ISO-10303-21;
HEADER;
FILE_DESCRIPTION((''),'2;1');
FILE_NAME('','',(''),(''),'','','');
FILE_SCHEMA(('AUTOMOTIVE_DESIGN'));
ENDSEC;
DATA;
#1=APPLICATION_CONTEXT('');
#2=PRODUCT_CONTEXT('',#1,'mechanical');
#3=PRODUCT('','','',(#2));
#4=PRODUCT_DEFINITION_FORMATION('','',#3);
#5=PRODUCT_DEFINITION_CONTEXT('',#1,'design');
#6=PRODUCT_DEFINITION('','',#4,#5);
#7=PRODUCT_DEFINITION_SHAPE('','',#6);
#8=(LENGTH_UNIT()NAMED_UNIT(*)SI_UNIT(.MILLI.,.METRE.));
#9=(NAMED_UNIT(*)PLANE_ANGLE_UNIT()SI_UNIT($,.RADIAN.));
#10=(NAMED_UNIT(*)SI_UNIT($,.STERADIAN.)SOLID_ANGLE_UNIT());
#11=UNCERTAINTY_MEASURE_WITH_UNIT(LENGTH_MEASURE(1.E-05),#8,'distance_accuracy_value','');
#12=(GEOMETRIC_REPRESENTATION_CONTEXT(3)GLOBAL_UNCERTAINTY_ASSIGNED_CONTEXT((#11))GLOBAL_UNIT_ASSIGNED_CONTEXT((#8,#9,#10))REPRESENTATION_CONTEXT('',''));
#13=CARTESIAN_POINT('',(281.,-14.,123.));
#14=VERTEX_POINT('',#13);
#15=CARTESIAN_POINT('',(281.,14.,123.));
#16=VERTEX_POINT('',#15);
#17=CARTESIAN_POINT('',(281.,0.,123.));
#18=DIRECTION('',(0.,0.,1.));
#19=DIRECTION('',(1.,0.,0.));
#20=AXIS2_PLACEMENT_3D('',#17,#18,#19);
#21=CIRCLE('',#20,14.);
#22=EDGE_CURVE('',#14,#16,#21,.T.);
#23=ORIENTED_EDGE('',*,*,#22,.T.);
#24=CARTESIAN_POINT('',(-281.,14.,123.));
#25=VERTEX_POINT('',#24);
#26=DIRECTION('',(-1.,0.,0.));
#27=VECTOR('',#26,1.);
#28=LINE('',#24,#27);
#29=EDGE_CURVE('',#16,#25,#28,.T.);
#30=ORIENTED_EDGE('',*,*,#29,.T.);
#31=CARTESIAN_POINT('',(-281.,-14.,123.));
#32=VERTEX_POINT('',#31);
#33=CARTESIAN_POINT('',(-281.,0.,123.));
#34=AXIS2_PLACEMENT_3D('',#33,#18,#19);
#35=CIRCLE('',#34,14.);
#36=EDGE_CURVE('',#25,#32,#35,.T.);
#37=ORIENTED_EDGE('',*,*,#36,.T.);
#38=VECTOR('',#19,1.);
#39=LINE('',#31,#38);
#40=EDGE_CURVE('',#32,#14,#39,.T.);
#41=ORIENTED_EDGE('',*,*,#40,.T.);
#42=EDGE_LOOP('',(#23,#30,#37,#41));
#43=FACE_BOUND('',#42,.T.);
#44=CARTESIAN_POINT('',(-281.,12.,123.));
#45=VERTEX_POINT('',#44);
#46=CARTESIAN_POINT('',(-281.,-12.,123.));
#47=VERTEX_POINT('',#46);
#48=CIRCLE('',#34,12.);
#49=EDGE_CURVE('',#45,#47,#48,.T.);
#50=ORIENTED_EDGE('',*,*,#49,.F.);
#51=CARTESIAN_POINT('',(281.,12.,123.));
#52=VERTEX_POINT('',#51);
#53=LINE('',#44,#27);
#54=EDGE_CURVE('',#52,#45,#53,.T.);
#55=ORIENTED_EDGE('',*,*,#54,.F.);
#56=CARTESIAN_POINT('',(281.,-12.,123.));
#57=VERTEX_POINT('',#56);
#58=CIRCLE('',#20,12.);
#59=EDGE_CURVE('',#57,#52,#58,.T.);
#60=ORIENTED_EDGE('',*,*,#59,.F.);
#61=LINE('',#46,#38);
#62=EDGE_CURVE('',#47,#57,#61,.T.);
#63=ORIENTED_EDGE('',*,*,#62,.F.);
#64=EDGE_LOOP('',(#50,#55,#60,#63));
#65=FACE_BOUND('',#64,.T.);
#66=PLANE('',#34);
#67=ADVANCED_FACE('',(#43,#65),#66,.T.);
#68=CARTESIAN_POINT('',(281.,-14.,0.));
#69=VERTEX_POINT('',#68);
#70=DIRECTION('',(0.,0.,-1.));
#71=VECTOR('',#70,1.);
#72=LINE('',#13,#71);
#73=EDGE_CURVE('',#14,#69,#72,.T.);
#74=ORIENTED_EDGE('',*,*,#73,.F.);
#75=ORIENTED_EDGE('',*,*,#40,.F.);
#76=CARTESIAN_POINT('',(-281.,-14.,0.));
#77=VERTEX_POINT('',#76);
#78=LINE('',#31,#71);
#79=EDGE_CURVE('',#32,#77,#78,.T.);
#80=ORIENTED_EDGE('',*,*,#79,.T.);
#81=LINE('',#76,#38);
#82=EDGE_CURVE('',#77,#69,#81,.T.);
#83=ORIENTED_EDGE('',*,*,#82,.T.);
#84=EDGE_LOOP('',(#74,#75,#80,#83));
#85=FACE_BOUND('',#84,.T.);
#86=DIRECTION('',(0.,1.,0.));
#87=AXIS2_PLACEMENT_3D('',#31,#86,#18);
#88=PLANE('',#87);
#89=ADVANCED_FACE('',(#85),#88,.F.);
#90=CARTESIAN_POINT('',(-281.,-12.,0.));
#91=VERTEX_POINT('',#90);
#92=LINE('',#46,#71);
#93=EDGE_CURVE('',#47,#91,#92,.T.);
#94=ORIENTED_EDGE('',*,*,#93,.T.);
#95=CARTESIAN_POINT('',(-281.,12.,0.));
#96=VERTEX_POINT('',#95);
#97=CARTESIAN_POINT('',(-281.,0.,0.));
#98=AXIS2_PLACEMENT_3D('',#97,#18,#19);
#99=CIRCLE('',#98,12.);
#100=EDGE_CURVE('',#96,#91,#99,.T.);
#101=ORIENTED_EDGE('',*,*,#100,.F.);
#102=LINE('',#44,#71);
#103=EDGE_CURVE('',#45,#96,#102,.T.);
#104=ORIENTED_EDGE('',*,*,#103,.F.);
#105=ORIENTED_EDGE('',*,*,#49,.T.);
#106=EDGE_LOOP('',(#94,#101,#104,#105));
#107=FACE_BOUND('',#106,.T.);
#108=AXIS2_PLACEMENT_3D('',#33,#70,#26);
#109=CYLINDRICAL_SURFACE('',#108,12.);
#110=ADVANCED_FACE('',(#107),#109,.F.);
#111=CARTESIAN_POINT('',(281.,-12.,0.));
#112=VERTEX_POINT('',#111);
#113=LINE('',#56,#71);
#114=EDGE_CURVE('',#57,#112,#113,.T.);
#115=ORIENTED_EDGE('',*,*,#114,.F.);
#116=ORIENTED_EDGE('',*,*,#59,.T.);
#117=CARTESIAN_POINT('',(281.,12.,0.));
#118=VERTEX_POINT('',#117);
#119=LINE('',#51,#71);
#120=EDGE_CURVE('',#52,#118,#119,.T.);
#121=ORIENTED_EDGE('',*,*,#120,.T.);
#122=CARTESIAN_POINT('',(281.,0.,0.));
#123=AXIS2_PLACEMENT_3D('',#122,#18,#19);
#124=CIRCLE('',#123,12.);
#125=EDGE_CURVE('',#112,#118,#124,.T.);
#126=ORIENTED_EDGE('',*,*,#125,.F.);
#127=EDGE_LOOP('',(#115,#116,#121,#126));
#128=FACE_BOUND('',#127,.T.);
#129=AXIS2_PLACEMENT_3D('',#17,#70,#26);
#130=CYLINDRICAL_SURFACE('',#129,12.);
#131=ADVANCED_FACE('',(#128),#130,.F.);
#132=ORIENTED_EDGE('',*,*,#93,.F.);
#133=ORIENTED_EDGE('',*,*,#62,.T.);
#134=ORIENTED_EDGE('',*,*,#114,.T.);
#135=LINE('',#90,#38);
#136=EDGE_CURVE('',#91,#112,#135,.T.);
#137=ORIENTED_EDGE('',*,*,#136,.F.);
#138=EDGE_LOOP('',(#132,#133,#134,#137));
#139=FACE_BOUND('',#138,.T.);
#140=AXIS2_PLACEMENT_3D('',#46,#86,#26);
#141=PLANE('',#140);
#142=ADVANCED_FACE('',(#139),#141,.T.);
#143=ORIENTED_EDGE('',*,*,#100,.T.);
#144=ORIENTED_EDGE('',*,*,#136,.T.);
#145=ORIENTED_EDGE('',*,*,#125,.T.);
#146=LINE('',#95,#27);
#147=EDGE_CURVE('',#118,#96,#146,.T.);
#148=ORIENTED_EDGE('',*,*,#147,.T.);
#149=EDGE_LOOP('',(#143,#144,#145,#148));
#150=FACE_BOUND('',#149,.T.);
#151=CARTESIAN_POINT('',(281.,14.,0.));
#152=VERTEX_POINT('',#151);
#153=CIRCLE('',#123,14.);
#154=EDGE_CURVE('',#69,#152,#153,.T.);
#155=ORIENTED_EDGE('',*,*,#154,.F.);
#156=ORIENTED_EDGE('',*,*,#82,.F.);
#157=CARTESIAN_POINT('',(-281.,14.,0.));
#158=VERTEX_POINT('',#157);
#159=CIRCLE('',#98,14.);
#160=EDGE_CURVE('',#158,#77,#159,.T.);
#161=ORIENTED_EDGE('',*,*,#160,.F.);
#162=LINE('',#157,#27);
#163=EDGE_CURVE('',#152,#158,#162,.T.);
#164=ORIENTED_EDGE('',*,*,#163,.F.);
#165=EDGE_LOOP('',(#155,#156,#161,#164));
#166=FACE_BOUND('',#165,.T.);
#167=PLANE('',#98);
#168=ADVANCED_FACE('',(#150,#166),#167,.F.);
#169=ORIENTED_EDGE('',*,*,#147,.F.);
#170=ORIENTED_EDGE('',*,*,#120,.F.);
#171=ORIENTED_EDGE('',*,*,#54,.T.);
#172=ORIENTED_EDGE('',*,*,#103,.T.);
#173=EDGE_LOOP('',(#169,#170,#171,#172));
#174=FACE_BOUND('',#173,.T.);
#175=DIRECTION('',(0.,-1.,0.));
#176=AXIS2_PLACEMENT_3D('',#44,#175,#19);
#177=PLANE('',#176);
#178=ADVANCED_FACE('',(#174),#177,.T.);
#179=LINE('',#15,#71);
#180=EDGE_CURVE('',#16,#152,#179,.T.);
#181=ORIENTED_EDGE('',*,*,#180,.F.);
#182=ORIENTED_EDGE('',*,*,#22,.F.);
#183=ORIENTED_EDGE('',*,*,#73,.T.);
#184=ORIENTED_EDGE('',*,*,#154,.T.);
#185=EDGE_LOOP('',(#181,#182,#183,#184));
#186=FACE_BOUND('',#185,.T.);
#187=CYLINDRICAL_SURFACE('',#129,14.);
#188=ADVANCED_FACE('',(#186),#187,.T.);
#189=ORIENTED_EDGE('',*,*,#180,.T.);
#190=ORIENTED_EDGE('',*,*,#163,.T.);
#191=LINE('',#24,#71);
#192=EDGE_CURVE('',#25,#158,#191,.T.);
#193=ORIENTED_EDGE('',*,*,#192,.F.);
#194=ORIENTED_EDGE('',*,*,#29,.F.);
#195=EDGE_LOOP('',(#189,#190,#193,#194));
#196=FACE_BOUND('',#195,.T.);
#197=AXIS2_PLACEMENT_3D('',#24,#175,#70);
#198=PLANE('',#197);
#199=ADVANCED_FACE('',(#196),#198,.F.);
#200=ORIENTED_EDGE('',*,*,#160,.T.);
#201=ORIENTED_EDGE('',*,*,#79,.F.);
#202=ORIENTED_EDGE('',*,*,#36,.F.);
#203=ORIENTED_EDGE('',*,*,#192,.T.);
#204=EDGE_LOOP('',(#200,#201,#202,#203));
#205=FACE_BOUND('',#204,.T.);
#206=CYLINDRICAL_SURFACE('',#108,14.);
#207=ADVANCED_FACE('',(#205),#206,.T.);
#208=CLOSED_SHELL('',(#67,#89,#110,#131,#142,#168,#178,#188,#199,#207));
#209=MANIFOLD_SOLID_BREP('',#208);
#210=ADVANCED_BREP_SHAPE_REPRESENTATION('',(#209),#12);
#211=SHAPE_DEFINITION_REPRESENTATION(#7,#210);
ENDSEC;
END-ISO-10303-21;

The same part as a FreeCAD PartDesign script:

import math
import FreeCAD as App
import Part
import Sketcher
from FreeCAD import Vector

doc = App.newDocument("Part")
body = doc.addObject("PartDesign::Body", "Body")

# Sketch on XY plane
sketch1 = body.newObject("Sketcher::SketchObject", "Sketch")
sketch1.AttachmentSupport = (doc.getObject("XY_Plane"), [""])
sketch1.MapMode = "FlatFace"
sketch1.addGeometry([
    Part.LineSegment(Vector(281, 14, 0), Vector(-281, 14, 0)),  # 0
    Part.ArcOfCircle(Part.Circle(Vector(-281, 0, 0), Vector(0, 0, 1), 14), math.radians(90), math.radians(270)),  # 1
    Part.LineSegment(Vector(-281, -14, 0), Vector(281, -14, 0)),  # 2
    Part.ArcOfCircle(Part.Circle(Vector(281, 0, 0), Vector(0, 0, 1), 14), math.radians(-90), math.radians(90)),  # 3
    Part.LineSegment(Vector(-281, 12, 0), Vector(281, 12, 0)),  # 4
    Part.ArcOfCircle(Part.Circle(Vector(281, 0, 0), Vector(0, 0, 1), 12), math.radians(-90), math.radians(90)),  # 5
    Part.LineSegment(Vector(281, -12, 0), Vector(-281, -12, 0)),  # 6
    Part.ArcOfCircle(Part.Circle(Vector(-281, 0, 0), Vector(0, 0, 1), 12), math.radians(90), math.radians(270)),  # 7
], False)
sketch1.addConstraint([
    Sketcher.Constraint("Tangent", 0, 2, 1, 1),
    Sketcher.Constraint("Tangent", 1, 2, 2, 1),
    Sketcher.Constraint("Tangent", 2, 2, 3, 1),
    Sketcher.Constraint("Tangent", 3, 2, 0, 1),
    Sketcher.Constraint("Tangent", 4, 2, 5, 2),
    Sketcher.Constraint("Tangent", 5, 1, 6, 1),
    Sketcher.Constraint("Tangent", 6, 2, 7, 2),
    Sketcher.Constraint("Tangent", 7, 1, 4, 1),
    Sketcher.Constraint("Horizontal", 0),
    Sketcher.Constraint("Horizontal", 2),
    Sketcher.Constraint("Horizontal", 4),
    Sketcher.Constraint("Horizontal", 6),
    Sketcher.Constraint("Coincident", 5, 3, 3, 3),
    Sketcher.Constraint("Symmetric", 1, 3, 3, 3, -1, 1),
    Sketcher.Constraint("Vertical", 7, 3, 0, 2),
    Sketcher.Constraint("Radius", 1, 14.0),
    Sketcher.Constraint("Radius", 5, 12.0),
    Sketcher.Constraint("DistanceX", 0, 2, 0, 1, 562.0),
])
pad1 = body.newObject("PartDesign::Pad", "Pad")
pad1.Profile = sketch1
pad1.Length = 123

doc.recompute()
